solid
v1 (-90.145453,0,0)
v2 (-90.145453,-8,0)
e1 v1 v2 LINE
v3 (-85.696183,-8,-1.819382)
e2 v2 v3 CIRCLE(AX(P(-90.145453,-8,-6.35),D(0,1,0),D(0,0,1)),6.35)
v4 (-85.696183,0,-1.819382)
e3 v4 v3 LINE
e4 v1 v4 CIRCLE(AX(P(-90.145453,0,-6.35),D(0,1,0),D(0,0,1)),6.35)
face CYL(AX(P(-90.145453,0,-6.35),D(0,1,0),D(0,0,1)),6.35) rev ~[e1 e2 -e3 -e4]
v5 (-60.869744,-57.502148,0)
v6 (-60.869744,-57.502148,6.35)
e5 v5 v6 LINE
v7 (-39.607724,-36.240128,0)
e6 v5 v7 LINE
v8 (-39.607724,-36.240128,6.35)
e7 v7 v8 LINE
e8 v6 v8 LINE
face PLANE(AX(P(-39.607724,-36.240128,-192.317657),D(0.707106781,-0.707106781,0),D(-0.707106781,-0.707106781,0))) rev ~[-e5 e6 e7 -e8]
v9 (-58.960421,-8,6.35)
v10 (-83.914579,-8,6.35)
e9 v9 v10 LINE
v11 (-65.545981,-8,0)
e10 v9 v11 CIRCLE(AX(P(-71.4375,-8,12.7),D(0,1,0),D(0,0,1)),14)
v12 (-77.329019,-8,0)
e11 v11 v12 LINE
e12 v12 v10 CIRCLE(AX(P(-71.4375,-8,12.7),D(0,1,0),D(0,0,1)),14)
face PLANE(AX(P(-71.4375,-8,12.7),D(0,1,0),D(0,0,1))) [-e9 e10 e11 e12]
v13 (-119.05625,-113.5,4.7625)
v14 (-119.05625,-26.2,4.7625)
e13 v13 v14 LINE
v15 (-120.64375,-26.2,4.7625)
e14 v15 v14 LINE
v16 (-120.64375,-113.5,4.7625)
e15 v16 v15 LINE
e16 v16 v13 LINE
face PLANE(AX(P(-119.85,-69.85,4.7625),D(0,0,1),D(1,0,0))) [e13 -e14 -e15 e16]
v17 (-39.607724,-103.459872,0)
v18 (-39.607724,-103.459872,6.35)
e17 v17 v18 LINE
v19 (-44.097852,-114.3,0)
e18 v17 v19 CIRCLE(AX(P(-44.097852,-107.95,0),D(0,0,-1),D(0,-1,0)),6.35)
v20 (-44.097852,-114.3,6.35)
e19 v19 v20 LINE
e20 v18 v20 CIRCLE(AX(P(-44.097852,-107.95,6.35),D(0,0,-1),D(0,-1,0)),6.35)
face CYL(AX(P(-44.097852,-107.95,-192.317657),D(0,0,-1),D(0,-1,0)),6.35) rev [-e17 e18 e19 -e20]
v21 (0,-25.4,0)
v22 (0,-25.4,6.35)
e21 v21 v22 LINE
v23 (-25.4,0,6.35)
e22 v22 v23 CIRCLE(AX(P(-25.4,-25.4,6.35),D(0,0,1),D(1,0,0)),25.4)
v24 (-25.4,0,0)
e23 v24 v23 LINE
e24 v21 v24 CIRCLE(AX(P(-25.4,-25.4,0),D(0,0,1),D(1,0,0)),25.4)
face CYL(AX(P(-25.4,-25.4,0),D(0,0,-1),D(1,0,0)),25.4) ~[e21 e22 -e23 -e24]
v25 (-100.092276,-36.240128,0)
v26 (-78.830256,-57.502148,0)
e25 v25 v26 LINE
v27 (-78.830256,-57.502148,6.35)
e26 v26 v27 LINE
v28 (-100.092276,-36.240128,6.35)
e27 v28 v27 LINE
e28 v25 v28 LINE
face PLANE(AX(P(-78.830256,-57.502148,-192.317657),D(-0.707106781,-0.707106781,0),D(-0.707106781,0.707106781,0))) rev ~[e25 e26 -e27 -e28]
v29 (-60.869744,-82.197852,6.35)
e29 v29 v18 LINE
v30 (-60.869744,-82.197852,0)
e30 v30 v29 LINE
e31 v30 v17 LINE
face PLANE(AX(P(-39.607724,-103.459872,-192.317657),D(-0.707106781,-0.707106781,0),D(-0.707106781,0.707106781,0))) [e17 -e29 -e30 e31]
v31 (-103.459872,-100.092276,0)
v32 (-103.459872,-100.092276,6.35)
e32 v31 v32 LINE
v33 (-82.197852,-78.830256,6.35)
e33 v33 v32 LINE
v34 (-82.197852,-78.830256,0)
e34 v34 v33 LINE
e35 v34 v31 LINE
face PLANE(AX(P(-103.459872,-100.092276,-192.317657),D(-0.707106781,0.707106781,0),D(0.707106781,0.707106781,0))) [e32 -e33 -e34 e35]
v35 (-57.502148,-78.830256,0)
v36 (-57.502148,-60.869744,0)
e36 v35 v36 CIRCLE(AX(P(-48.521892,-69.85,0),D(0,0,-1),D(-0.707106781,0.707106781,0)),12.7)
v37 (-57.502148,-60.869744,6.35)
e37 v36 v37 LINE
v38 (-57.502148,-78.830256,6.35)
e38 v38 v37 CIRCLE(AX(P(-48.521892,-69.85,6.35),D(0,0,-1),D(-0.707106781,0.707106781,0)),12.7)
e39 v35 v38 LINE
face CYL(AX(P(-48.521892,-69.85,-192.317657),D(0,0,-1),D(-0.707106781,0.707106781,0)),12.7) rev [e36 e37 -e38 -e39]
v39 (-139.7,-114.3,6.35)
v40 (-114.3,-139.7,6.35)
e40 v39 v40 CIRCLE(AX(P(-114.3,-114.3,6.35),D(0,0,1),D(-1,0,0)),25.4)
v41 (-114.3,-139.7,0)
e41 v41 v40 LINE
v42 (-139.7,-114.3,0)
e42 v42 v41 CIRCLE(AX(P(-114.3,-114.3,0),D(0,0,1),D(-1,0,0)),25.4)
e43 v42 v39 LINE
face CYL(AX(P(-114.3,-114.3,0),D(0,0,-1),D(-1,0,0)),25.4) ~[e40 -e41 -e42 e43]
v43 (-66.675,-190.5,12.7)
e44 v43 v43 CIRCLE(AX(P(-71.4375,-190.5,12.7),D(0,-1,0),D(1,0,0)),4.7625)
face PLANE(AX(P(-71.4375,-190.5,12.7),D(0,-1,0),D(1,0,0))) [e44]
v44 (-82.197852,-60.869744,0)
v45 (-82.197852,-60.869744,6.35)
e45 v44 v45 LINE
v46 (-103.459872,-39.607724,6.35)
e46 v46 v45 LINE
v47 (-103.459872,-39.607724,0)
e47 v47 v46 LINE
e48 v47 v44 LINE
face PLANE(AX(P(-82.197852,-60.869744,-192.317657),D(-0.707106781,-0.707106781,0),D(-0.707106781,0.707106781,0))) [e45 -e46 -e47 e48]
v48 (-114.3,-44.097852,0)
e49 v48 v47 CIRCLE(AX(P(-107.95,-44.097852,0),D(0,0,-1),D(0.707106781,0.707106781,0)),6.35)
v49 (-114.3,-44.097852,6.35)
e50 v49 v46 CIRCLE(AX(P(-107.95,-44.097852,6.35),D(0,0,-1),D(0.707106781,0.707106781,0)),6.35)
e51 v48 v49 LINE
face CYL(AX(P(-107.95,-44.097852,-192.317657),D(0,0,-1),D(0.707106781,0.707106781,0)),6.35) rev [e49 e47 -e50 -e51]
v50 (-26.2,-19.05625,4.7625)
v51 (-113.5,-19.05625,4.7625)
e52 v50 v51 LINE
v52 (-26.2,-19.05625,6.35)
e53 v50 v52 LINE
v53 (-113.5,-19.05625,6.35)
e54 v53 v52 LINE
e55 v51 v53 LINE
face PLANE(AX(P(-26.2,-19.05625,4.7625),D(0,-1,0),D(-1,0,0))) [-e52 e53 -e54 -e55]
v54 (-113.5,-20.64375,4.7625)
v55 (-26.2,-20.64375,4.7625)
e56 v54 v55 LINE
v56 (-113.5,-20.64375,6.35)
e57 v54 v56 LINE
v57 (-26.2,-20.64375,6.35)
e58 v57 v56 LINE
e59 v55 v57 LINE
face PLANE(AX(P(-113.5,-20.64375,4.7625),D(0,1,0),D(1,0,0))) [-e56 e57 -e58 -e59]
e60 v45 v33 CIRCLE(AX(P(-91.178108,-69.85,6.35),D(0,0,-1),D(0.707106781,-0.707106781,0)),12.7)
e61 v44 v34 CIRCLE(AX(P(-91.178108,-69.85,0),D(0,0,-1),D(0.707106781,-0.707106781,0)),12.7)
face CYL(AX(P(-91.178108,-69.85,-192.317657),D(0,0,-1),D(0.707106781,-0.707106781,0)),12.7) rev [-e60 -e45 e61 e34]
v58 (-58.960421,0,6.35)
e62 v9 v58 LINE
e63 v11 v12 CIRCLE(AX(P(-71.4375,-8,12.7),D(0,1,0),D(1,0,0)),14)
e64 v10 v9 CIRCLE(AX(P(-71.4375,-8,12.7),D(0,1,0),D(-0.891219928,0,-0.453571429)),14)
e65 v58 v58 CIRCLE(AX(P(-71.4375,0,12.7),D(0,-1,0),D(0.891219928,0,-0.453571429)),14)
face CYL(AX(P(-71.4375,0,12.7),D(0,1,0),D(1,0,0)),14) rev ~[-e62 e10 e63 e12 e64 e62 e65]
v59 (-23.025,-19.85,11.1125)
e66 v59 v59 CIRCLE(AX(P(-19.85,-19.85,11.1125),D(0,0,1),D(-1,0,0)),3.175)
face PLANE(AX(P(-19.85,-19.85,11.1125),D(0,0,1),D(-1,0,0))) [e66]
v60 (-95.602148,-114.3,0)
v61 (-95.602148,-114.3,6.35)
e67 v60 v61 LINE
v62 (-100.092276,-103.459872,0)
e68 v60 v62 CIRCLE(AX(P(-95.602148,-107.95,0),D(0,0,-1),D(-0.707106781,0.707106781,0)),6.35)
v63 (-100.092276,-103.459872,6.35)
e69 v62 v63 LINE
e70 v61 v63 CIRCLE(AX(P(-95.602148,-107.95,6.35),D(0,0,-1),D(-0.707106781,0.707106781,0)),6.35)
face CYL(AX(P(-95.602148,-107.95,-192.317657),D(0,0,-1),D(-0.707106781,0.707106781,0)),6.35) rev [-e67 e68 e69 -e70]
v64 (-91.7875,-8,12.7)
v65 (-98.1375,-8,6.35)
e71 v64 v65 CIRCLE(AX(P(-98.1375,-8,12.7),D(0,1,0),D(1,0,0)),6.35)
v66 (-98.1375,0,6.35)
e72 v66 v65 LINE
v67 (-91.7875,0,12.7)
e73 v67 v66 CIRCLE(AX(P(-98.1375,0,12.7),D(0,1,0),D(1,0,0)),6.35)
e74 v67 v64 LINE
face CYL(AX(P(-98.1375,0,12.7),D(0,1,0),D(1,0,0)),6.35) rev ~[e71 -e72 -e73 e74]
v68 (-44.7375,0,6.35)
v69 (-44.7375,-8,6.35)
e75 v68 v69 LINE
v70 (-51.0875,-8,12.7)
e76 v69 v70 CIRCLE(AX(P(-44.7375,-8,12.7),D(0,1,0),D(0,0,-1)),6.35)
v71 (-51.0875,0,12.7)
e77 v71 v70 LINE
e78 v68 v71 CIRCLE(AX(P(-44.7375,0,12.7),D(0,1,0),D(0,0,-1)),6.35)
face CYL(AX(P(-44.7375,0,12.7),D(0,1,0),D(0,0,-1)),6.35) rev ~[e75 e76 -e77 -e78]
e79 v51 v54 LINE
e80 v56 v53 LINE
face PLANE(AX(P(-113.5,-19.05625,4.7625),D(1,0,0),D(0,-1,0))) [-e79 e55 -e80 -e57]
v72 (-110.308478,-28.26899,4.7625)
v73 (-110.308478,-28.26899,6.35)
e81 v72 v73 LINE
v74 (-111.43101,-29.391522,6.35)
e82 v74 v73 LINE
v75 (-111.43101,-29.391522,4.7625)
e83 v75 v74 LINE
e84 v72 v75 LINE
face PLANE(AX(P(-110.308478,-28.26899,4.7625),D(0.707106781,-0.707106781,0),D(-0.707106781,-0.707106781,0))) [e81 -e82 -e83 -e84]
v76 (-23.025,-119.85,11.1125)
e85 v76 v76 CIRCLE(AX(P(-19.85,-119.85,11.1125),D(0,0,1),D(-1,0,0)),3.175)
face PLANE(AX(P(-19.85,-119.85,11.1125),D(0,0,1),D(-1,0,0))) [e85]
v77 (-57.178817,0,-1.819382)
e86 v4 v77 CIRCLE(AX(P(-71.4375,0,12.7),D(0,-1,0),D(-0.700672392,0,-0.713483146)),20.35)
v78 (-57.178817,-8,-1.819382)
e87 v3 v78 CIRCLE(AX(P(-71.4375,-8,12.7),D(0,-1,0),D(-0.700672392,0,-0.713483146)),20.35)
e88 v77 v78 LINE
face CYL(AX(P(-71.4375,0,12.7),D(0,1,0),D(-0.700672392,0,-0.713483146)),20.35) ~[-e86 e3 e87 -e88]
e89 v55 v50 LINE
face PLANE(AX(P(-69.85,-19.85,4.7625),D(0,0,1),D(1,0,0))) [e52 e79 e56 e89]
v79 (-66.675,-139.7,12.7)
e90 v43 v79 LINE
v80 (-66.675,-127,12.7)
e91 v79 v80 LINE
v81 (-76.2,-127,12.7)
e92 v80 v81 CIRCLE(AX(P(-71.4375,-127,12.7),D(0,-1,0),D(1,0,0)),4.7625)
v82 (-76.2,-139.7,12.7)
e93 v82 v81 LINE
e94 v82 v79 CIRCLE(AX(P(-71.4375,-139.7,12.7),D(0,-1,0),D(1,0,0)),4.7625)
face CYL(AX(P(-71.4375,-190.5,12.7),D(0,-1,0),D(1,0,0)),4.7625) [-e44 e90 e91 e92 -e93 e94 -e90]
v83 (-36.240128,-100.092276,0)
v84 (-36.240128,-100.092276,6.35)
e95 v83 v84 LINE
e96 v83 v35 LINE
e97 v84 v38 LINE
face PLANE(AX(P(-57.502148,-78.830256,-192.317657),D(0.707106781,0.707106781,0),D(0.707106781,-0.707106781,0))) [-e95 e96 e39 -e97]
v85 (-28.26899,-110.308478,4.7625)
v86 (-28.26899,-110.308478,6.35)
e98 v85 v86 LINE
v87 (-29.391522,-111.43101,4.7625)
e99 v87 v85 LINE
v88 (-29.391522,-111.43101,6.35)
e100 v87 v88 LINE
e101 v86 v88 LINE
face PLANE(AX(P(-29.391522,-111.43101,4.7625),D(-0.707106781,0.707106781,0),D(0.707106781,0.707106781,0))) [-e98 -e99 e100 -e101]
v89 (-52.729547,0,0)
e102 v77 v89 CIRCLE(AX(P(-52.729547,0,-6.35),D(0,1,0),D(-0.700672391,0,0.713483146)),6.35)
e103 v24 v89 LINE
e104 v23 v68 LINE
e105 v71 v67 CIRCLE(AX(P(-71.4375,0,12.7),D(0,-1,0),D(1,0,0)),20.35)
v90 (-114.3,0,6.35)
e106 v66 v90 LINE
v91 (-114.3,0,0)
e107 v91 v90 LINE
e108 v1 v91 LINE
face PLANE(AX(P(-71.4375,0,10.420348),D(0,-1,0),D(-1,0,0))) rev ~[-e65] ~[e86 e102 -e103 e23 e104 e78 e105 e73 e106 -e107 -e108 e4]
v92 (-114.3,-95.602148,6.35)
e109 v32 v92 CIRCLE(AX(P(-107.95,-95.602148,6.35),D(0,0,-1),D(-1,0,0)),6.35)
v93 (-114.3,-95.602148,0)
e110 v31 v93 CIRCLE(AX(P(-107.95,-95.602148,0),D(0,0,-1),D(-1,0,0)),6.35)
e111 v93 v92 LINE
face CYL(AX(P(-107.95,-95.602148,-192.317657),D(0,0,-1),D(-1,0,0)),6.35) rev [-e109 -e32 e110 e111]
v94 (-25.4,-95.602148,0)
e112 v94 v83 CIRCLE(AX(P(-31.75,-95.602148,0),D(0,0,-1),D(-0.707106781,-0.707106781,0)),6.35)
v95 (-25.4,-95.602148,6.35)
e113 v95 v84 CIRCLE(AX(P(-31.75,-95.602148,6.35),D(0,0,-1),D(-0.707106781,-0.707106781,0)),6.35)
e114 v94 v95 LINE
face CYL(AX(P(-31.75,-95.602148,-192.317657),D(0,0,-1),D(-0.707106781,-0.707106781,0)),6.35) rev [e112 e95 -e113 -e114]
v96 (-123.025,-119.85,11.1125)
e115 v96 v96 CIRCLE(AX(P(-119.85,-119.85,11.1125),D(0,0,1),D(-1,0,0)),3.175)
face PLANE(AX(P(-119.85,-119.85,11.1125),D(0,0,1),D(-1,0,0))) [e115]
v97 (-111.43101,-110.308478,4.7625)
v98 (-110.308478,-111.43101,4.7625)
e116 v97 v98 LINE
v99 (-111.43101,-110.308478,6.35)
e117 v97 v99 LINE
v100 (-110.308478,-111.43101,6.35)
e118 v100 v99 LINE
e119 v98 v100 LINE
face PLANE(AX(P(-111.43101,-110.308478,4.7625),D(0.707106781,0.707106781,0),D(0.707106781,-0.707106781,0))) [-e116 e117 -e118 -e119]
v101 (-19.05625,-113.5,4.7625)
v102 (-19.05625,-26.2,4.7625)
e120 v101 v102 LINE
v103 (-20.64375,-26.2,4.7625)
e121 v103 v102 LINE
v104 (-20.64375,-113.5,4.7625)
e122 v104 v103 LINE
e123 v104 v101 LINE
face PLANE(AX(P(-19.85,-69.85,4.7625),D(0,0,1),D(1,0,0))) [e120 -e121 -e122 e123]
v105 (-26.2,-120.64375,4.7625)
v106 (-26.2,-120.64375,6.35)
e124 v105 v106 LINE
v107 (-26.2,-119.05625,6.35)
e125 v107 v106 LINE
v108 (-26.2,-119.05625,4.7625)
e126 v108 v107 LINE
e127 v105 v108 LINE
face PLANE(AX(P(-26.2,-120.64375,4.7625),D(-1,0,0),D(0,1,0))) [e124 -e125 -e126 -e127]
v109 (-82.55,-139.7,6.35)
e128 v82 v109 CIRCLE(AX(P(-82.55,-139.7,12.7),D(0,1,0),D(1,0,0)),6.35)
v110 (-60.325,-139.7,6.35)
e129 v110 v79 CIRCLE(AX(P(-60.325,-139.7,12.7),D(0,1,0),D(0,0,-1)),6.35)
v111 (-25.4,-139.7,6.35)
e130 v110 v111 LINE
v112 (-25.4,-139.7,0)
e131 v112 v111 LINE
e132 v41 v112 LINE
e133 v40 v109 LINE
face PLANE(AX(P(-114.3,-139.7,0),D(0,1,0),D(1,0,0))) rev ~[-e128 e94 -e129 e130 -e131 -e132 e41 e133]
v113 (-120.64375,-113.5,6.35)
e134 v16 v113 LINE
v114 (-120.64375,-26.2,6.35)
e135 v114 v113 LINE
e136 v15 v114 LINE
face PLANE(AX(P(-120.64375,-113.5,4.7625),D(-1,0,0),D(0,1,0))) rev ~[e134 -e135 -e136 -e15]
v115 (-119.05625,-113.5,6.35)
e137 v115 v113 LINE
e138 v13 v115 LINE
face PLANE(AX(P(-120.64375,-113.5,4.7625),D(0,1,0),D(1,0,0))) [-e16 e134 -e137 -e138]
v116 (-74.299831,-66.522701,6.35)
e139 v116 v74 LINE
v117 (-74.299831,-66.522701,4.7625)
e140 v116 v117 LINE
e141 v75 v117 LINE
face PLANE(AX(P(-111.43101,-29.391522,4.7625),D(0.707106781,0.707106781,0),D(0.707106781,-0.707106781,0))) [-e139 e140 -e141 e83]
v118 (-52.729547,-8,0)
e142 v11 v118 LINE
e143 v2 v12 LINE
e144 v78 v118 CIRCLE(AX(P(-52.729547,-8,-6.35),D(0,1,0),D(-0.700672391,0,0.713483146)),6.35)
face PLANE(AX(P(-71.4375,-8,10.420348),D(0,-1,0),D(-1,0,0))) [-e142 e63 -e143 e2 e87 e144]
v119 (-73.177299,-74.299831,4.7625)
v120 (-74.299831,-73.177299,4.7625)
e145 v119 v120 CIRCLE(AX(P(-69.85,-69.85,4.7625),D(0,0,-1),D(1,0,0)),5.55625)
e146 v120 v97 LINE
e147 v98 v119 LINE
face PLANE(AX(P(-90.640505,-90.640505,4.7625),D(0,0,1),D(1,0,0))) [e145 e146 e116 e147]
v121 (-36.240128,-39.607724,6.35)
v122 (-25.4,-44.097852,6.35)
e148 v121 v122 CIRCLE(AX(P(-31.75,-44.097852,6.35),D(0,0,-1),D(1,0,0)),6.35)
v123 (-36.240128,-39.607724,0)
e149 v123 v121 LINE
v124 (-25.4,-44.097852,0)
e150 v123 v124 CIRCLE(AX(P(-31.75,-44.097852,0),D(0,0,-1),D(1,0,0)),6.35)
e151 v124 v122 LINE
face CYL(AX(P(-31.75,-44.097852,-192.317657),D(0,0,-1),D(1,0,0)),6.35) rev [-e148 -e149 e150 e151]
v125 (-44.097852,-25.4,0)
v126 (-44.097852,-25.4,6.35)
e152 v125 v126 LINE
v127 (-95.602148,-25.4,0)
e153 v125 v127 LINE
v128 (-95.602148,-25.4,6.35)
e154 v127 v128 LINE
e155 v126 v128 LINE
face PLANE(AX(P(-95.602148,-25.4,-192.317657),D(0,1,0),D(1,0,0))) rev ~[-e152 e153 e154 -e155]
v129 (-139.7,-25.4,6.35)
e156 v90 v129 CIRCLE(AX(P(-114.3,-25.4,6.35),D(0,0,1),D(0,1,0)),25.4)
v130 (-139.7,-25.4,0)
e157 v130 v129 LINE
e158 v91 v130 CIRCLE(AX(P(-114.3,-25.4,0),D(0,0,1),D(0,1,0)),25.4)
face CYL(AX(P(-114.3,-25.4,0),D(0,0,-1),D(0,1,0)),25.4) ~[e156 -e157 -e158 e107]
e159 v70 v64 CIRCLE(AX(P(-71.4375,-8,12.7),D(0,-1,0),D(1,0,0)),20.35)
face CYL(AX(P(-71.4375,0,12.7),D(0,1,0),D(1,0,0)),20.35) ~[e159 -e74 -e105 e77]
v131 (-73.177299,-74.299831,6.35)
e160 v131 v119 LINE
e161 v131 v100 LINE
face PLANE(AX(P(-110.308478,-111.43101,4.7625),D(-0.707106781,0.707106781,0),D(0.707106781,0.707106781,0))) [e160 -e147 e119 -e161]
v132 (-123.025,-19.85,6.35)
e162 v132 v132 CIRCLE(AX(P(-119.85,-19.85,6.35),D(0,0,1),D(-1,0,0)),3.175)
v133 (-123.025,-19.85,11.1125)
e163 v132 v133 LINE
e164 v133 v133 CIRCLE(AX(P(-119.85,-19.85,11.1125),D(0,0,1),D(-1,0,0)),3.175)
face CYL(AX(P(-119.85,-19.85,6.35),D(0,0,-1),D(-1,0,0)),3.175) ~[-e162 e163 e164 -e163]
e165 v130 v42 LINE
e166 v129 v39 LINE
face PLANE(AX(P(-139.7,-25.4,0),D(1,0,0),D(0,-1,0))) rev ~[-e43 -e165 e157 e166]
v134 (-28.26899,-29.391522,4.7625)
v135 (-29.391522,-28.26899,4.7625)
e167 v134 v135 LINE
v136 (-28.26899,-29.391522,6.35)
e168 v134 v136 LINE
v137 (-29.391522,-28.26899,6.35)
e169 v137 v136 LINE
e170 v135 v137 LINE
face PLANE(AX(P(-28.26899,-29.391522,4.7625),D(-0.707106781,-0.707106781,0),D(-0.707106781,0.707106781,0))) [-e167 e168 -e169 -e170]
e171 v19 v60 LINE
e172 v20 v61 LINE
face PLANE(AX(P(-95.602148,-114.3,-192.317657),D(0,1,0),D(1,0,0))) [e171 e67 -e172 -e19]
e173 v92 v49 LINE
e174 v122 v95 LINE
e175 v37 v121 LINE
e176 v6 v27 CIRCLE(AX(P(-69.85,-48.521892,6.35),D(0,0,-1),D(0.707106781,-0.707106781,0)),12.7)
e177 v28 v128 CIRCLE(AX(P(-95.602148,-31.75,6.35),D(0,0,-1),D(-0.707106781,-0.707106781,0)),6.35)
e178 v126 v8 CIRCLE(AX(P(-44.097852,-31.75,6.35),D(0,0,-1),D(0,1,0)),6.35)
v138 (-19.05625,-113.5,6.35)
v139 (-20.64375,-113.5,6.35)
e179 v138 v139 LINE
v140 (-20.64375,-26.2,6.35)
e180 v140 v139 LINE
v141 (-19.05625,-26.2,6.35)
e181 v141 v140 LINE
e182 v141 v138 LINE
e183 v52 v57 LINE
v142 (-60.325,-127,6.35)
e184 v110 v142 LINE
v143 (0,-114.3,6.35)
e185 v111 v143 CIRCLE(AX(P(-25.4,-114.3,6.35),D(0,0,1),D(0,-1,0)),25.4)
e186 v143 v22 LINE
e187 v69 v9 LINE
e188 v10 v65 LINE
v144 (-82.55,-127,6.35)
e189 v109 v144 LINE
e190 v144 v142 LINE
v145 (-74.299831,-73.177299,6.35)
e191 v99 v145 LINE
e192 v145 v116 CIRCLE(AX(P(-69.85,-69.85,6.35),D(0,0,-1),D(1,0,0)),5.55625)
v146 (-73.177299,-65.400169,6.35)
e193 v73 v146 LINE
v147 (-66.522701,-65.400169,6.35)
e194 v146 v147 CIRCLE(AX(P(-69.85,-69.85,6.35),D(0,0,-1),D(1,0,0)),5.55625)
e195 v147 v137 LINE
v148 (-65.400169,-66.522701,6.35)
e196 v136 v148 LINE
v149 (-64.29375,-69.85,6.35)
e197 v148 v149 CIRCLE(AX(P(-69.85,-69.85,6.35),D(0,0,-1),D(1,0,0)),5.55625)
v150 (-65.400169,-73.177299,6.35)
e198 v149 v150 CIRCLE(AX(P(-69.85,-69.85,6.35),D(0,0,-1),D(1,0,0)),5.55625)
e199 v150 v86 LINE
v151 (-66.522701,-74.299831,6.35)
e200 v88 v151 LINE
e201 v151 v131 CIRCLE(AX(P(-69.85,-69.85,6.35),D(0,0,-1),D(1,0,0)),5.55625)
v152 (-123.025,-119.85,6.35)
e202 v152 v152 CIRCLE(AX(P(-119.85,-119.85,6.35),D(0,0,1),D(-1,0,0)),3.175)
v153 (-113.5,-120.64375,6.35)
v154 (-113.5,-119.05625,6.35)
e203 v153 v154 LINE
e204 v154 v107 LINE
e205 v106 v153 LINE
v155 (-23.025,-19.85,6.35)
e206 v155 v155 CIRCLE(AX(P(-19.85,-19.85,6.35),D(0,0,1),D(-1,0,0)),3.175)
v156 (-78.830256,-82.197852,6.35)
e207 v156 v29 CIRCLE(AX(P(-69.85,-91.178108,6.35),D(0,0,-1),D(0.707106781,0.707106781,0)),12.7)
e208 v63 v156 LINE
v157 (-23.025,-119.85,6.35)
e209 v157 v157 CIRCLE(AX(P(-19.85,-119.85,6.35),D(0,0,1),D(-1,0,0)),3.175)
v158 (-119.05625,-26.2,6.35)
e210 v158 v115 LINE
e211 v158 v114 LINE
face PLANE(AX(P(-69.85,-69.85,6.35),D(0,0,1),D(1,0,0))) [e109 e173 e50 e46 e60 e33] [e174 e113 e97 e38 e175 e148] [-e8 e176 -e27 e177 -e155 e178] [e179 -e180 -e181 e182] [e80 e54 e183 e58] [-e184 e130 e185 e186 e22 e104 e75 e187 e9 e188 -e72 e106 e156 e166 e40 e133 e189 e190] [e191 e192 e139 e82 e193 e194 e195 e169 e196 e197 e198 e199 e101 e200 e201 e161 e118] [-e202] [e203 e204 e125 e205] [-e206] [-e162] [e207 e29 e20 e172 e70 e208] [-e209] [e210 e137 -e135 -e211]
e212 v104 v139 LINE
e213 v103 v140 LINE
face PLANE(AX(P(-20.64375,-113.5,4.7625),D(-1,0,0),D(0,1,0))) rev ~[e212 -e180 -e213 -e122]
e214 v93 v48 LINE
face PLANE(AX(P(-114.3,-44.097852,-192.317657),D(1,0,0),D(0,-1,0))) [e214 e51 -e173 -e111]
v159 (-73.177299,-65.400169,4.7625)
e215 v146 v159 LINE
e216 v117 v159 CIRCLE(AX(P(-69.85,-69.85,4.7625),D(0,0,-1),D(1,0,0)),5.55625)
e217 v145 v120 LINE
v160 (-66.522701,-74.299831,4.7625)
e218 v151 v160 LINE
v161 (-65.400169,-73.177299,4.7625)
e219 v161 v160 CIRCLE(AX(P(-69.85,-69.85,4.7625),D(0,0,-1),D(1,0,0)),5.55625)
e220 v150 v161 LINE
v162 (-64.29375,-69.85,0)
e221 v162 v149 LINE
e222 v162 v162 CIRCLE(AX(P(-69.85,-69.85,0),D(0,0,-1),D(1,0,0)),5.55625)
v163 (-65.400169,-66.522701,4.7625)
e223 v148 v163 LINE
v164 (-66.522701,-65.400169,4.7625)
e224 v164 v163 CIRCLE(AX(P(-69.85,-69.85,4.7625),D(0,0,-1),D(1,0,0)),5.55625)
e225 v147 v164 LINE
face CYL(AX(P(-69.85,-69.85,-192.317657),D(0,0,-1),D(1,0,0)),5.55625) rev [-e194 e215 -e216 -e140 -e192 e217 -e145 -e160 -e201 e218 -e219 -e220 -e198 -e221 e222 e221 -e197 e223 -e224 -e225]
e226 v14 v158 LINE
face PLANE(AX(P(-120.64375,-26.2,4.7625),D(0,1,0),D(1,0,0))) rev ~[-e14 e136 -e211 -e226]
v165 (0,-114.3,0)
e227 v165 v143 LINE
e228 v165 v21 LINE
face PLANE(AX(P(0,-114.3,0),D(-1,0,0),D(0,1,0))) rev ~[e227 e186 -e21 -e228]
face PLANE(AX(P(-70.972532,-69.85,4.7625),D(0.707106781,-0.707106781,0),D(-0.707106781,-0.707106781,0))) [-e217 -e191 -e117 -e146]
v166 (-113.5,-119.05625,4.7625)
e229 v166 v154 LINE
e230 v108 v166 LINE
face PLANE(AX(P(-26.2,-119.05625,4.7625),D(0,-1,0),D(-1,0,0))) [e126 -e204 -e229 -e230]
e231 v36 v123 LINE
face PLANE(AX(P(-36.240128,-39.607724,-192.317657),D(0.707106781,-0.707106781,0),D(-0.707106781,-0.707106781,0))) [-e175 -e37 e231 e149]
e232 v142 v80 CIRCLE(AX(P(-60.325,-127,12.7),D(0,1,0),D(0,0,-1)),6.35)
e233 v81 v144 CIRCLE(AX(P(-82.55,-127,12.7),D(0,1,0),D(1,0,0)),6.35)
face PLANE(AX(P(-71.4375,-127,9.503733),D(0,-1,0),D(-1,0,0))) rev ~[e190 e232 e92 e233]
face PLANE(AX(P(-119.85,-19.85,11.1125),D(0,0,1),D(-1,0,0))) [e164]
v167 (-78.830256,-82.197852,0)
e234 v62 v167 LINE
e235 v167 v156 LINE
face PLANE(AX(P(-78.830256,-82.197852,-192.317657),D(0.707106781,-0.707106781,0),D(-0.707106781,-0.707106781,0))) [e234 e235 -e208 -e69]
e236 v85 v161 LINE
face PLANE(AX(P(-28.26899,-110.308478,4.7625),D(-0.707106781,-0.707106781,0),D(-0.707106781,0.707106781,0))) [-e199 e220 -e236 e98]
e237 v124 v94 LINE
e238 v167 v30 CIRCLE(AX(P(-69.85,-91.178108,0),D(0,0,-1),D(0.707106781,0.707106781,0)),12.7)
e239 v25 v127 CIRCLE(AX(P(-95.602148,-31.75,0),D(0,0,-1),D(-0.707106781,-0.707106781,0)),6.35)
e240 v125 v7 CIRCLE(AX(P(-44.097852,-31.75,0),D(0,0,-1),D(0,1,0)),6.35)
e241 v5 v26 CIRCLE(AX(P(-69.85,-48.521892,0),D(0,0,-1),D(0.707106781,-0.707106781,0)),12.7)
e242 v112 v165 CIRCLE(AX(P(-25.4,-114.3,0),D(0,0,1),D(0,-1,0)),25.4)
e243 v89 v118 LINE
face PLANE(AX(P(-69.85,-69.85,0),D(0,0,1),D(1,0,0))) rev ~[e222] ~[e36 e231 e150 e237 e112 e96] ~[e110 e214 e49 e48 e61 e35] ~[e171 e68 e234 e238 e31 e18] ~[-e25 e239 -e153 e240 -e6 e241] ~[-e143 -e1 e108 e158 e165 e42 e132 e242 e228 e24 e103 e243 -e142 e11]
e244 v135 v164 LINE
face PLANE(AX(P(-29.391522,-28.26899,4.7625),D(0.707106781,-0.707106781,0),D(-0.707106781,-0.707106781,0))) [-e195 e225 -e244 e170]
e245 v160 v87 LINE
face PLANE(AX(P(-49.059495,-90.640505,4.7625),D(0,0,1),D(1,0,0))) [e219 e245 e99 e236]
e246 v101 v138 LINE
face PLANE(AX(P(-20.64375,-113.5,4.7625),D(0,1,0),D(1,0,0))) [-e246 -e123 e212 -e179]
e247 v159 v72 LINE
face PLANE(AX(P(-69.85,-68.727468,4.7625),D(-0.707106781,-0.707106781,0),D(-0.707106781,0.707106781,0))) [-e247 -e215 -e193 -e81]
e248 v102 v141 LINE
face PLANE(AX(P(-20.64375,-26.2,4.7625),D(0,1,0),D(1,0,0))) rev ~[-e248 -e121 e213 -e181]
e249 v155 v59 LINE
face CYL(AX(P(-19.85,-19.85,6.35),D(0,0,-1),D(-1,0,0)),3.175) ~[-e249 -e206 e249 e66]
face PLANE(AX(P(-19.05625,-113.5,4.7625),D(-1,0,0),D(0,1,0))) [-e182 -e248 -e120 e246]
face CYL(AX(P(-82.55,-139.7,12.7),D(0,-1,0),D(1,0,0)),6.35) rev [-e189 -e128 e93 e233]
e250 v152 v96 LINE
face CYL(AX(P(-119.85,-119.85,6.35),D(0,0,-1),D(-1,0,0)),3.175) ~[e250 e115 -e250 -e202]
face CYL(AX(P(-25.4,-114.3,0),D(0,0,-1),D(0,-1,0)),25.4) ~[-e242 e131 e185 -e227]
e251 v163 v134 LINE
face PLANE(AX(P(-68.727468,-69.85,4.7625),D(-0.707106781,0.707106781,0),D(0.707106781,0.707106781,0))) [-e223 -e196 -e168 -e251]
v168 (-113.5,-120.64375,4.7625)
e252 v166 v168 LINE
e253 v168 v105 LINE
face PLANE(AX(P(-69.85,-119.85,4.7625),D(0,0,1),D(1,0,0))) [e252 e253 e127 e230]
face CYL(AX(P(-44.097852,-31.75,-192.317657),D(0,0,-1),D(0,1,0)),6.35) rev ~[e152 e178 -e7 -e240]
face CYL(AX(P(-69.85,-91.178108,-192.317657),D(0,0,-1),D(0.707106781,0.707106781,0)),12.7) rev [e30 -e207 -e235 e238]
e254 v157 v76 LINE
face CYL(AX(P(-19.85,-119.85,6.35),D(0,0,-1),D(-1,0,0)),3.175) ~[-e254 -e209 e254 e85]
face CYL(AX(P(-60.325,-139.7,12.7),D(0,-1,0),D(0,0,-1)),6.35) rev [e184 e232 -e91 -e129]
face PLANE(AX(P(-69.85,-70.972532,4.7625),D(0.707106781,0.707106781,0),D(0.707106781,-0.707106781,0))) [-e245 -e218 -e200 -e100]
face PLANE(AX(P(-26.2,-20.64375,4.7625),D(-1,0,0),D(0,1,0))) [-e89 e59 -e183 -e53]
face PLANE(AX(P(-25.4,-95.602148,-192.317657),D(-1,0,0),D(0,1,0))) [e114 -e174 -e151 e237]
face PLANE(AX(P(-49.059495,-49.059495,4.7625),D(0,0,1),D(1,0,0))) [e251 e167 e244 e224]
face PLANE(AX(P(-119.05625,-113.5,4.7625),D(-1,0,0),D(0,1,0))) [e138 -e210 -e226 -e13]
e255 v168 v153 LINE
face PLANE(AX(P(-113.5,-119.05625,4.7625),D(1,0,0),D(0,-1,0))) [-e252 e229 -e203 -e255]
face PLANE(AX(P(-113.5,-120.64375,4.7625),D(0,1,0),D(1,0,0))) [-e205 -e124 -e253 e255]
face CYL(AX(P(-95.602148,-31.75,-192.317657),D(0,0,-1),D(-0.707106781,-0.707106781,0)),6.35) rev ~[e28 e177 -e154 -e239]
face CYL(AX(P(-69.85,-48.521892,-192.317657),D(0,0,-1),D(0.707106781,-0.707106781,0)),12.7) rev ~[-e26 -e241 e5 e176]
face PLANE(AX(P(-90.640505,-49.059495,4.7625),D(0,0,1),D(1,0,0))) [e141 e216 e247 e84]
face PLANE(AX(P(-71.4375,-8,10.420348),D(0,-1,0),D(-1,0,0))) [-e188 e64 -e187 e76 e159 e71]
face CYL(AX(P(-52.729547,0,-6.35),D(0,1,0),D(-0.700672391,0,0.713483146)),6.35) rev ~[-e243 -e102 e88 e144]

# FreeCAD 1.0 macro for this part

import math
import FreeCAD as App
import Part
import Sketcher
from FreeCAD import Vector
Q = App.Units.Quantity


def add_polygon(sketch, points):
    """Adds a closed chain of lines whose ends are joined by coincident constraints."""
    first, n = sketch.GeometryCount, len(points)
    for a, b in zip(points, points[1:] + points[:1]):
        sketch.addGeometry(Part.LineSegment(App.Vector(*a, 0), App.Vector(*b, 0)), False)
    for i in range(n):
        sketch.addConstraint(Sketcher.Constraint("Coincident", first + i, 2, first + (i + 1) % n, 1))

doc = App.newDocument("Part")
params = doc.addObject("Spreadsheet::Sheet", "Params")
for row, (alias, value) in enumerate([
    ("sketch1_radius", "1 in"),
    ("sketch1_width", "3.5 in"),
    ("pad1_length", "0.25 in"),
    ("sketch2_radius", "0.5 in"),
    ("sketch2_radius2", "0.25 in"),
    ("sketch2_diameter", "0.4375 in"),
    ("sketch3_width", "0.0625 in"),
    ("sketch3_length", "0.0625 in"),
    ("pocket2_length", "198.667657 mm"),
    ("pocket2_length2", "0.0625 in"),
    ("sketch4_diameter", "0.25 in"),
    ("pad2_length", "0.1875 in"),
    ("sketch5_radius", "0.25 in"),
    ("pad3_length", "8 mm"),
    ("sketch6_radius", "0.25 in"),
    ("sketch6_radius2", "0.1875 in"),
    ("pad4_length", "0.5 in"),
    ("sketch7_diameter", "0.375 in"),
    ("pad5_length", "2 in"),
    ("pocket3_length", "8 mm"),
], start=1):
    params.set(f"A{row}", alias)
    params.set(f"B{row}", "=" + value)
    params.setAlias(f"B{row}", alias)

body = doc.addObject("PartDesign::Body", "Body")

sketch1 = body.newObject("Sketcher::SketchObject", "Sketch")
sketch1.AttachmentSupport = (doc.getObject("XY_Plane"), [""])
sketch1.MapMode = "FlatFace"
sketch1.addGeometry([
    Part.LineSegment(Vector(-25.4, 0, 0), Vector(-114.3, 0, 0)),
    Part.ArcOfCircle(Part.Circle(Vector(-114.3, -25.4, 0), Vector(0, 0, 1), 25.4), math.radians(90), math.radians(180)),
    Part.LineSegment(Vector(-139.7, -25.4, 0), Vector(-139.7, -114.3, 0)),
    Part.ArcOfCircle(Part.Circle(Vector(-114.3, -114.3, 0), Vector(0, 0, 1), 25.4), math.radians(180), math.radians(270)),
    Part.LineSegment(Vector(-114.3, -139.7, 0), Vector(-25.4, -139.7, 0)),
    Part.ArcOfCircle(Part.Circle(Vector(-25.4, -114.3, 0), Vector(0, 0, 1), 25.4), math.radians(-90), math.radians(0)),
    Part.LineSegment(Vector(0, -114.3, 0), Vector(0, -25.4, 0)),
    Part.ArcOfCircle(Part.Circle(Vector(-25.4, -25.4, 0), Vector(0, 0, 1), 25.4), math.radians(0), math.radians(90)),
], False)
sketch1.addConstraint([
    Sketcher.Constraint("Tangent", 0, 2, 1, 1),
    Sketcher.Constraint("Tangent", 1, 2, 2, 1),
    Sketcher.Constraint("Tangent", 2, 2, 3, 1),
    Sketcher.Constraint("Tangent", 3, 2, 4, 1),
    Sketcher.Constraint("Tangent", 4, 2, 5, 1),
    Sketcher.Constraint("Tangent", 5, 2, 6, 1),
    Sketcher.Constraint("Tangent", 6, 2, 7, 1),
    Sketcher.Constraint("Tangent", 7, 2, 0, 1),
    Sketcher.Constraint("Horizontal", 0),
    Sketcher.Constraint("Vertical", 2),
    Sketcher.Constraint("Horizontal", 4),
    Sketcher.Constraint("Vertical", 6),
    Sketcher.Constraint("Equal", 1, 3),
    Sketcher.Constraint("Equal", 3, 5),
    Sketcher.Constraint("Equal", 5, 7),
    Sketcher.Constraint("PointOnObject", 0, 2, -1),
    Sketcher.Constraint("PointOnObject", 5, 2, -2),
    Sketcher.Constraint("Equal", 4, 2),
    Sketcher.Constraint("Radius", 1, Q("1 in")),
    Sketcher.Constraint("DistanceX", 0, 2, 0, 1, Q("3.5 in")),
])
sketch1.setExpression("Constraints[18]", "Params.sketch1_radius")
sketch1.setExpression("Constraints[19]", "Params.sketch1_width")
pad1 = body.newObject("PartDesign::Pad", "Pad")
pad1.Profile = sketch1
pad1.setExpression("Length", "Params.pad1_length")

sketch2 = body.newObject("Sketcher::SketchObject", "Sketch001")
sketch2.AttachmentSupport = (doc.getObject("XY_Plane"), [""])
sketch2.MapMode = "FlatFace"
sketch2.AttachmentOffset = App.Placement(Vector(0, 0, 0.25 * 25.4), App.Rotation())
sketch2.addGeometry([
    Part.Circle(Vector(-69.85, -69.85, 0), Vector(0, 0, 1), 5.55625),
    Part.LineSegment(Vector(-44.097852, -25.4, 0), Vector(-95.602148, -25.4, 0)),
    Part.ArcOfCircle(Part.Circle(Vector(-95.602148, -31.75, 0), Vector(0, 0, 1), 6.35), math.radians(90), math.radians(225)),
    Part.LineSegment(Vector(-100.092276, -36.240128, 0), Vector(-78.830256, -57.502148, 0)),
    Part.ArcOfCircle(Part.Circle(Vector(-69.85, -48.521892, 0), Vector(0, 0, 1), 12.7), math.radians(-135), math.radians(-45)),
    Part.LineSegment(Vector(-60.869744, -57.502148, 0), Vector(-39.607724, -36.240128, 0)),
    Part.ArcOfCircle(Part.Circle(Vector(-44.097852, -31.75, 0), Vector(0, 0, 1), 6.35), math.radians(-45), math.radians(90)),
    Part.LineSegment(Vector(-57.502148, -78.830256, 0), Vector(-36.240128, -100.092276, 0)),
    Part.ArcOfCircle(Part.Circle(Vector(-31.75, -95.602148, 0), Vector(0, 0, 1), 6.35), math.radians(-135), math.radians(0)),
    Part.LineSegment(Vector(-25.4, -95.602148, 0), Vector(-25.4, -44.097852, 0)),
    Part.ArcOfCircle(Part.Circle(Vector(-31.75, -44.097852, 0), Vector(0, 0, 1), 6.35), math.radians(0), math.radians(135)),
    Part.LineSegment(Vector(-36.240128, -39.607724, 0), Vector(-57.502148, -60.869744, 0)),
    Part.ArcOfCircle(Part.Circle(Vector(-48.521892, -69.85, 0), Vector(0, 0, 1), 12.7), math.radians(135), math.radians(225)),
    Part.LineSegment(Vector(-78.830256, -82.197852, 0), Vector(-100.092276, -103.459872, 0)),
    Part.ArcOfCircle(Part.Circle(Vector(-95.602148, -107.95, 0), Vector(0, 0, 1), 6.35), math.radians(135), math.radians(270)),
    Part.LineSegment(Vector(-95.602148, -114.3, 0), Vector(-44.097852, -114.3, 0)),
    Part.ArcOfCircle(Part.Circle(Vector(-44.097852, -107.95, 0), Vector(0, 0, 1), 6.35), math.radians(-90), math.radians(45)),
    Part.LineSegment(Vector(-39.607724, -103.459872, 0), Vector(-60.869744, -82.197852, 0)),
    Part.ArcOfCircle(Part.Circle(Vector(-69.85, -91.178108, 0), Vector(0, 0, 1), 12.7), math.radians(45), math.radians(135)),
    Part.LineSegment(Vector(-82.197852, -60.869744, 0), Vector(-103.459872, -39.607724, 0)),
    Part.ArcOfCircle(Part.Circle(Vector(-107.95, -44.097852, 0), Vector(0, 0, 1), 6.35), math.radians(45), math.radians(180)),
    Part.LineSegment(Vector(-114.3, -44.097852, 0), Vector(-114.3, -95.602148, 0)),
    Part.ArcOfCircle(Part.Circle(Vector(-107.95, -95.602148, 0), Vector(0, 0, 1), 6.35), math.radians(180), math.radians(315)),
    Part.LineSegment(Vector(-103.459872, -100.092276, 0), Vector(-82.197852, -78.830256, 0)),
    Part.ArcOfCircle(Part.Circle(Vector(-91.178108, -69.85, 0), Vector(0, 0, 1), 12.7), math.radians(-45), math.radians(45)),
], False)
sketch2.addConstraint([
    Sketcher.Constraint("Tangent", 1, 2, 2, 1),
    Sketcher.Constraint("Tangent", 2, 2, 3, 1),
    Sketcher.Constraint("Tangent", 3, 2, 4, 1),
    Sketcher.Constraint("Tangent", 4, 2, 5, 1),
    Sketcher.Constraint("Tangent", 5, 2, 6, 1),
    Sketcher.Constraint("Tangent", 6, 2, 1, 1),
    Sketcher.Constraint("Tangent", 7, 2, 8, 1),
    Sketcher.Constraint("Tangent", 8, 2, 9, 1),
    Sketcher.Constraint("Tangent", 9, 2, 10, 1),
    Sketcher.Constraint("Tangent", 10, 2, 11, 1),
    Sketcher.Constraint("Tangent", 11, 2, 12, 1),
    Sketcher.Constraint("Tangent", 12, 2, 7, 1),
    Sketcher.Constraint("Tangent", 13, 2, 14, 1),
    Sketcher.Constraint("Tangent", 14, 2, 15, 1),
    Sketcher.Constraint("Tangent", 15, 2, 16, 1),
    Sketcher.Constraint("Tangent", 16, 2, 17, 1),
    Sketcher.Constraint("Tangent", 17, 2, 18, 1),
    Sketcher.Constraint("Tangent", 18, 2, 13, 1),
    Sketcher.Constraint("Tangent", 19, 2, 20, 1),
    Sketcher.Constraint("Tangent", 20, 2, 21, 1),
    Sketcher.Constraint("Tangent", 21, 2, 22, 1),
    Sketcher.Constraint("Tangent", 22, 2, 23, 1),
    Sketcher.Constraint("Tangent", 23, 2, 24, 1),
    Sketcher.Constraint("Tangent", 24, 2, 19, 1),
    Sketcher.Constraint("Horizontal", 1),
    Sketcher.Constraint("Vertical", 9),
    Sketcher.Constraint("Horizontal", 15),
    Sketcher.Constraint("Vertical", 21),
    Sketcher.Constraint("Equal", 2, 6),
    Sketcher.Constraint("Equal", 6, 8),
    Sketcher.Constraint("Equal", 8, 10),
    Sketcher.Constraint("Equal", 4, 12),
    Sketcher.Constraint("Equal", 10, 14),
    Sketcher.Constraint("Equal", 14, 16),
    Sketcher.Constraint("Equal", 12, 18),
    Sketcher.Constraint("Equal", 16, 20),
    Sketcher.Constraint("Equal", 20, 22),
    Sketcher.Constraint("Equal", 18, 24),
    Sketcher.Constraint("Perpendicular", 3, 5),
    Sketcher.Constraint("Perpendicular", 5, 7),
    Sketcher.Constraint("Perpendicular", 7, 11),
    Sketcher.Constraint("Parallel", 11, 13),
    Sketcher.Constraint("Perpendicular", 13, 17),
    Sketcher.Constraint("Parallel", 17, 19),
    Sketcher.Constraint("Perpendicular", 19, 23),
    Sketcher.Constraint("Horizontal", 0, 3, 12, 3),
    Sketcher.Constraint("Horizontal", 10, 3, 20, 3),
    Sketcher.Constraint("Horizontal", 8, 3, 22, 3),
    Sketcher.Constraint("Horizontal", 12, 3, 24, 3),
    Sketcher.Constraint("Vertical", 0, 3, 4, 3),
    Sketcher.Constraint("Vertical", 2, 3, 14, 3),
    Sketcher.Constraint("Vertical", 6, 3, 16, 3),
    Sketcher.Constraint("Equal", 15, 9),
    Sketcher.Constraint("Radius", 4, Q("0.5 in")),
    Sketcher.Constraint("Radius", 2, Q("0.25 in")),
    Sketcher.Constraint("Diameter", 0, Q("0.4375 in")),
    Sketcher.Constraint("DistanceY", 1, 2, -1, 1, Q("1 in")),
    Sketcher.Constraint("DistanceX", 8, 2, -1, 1, Q("1 in")),
    Sketcher.Constraint("DistanceY", 14, 3, 2, 3, Q("3 in")),
    Sketcher.Constraint("DistanceX", 20, 2, -1, 1, Q("4.5 in")),
    Sketcher.Constraint("DistanceY", 0, 3, 2, 3, Q("1.5 in")),
    Sketcher.Constraint("DistanceX", 0, 3, 8, 3, Q("1.5 in")),
    Sketcher.Constraint("DistanceX", 1, 2, 1, 1, 51.504296),
])
sketch2.setExpression("Constraints[53]", "Params.sketch2_radius")
sketch2.setExpression("Constraints[54]", "Params.sketch2_radius2")
sketch2.setExpression("Constraints[55]", "Params.sketch2_diameter")
pocket1 = body.newObject("PartDesign::Pocket", "Pocket")
pocket1.Profile = sketch2
pocket1.Type = "ThroughAll"
pocket1.Midplane = True

sketch3 = body.newObject("Sketcher::SketchObject", "Sketch002")
sketch3.AttachmentSupport = (doc.getObject("XY_Plane"), [""])
sketch3.MapMode = "FlatFace"
sketch3.AttachmentOffset = App.Placement(Vector(0, 0, 0.25 * 25.4), App.Rotation())
add_polygon(sketch3, [(-26.2, -119.05625), (-113.5, -119.05625), (-113.5, -120.64375), (-26.2, -120.64375)])
add_polygon(sketch3, [(-29.391522, -28.26899), (-69.85, -68.727468), (-68.727468, -69.85), (-28.26899, -29.391522)])
add_polygon(sketch3, [(-70.972532, -69.85), (-69.85, -68.727468), (-110.308478, -28.26899), (-111.43101, -29.391522)])
add_polygon(sketch3, [(-113.5, -20.64375), (-26.2, -20.64375), (-26.2, -19.05625), (-113.5, -19.05625)])
add_polygon(sketch3, [(-110.308478, -111.43101), (-69.85, -70.972532), (-70.972532, -69.85), (-111.43101, -110.308478)])
add_polygon(sketch3, [(-68.727468, -69.85), (-69.85, -70.972532), (-29.391522, -111.43101), (-28.26899, -110.308478)])
add_polygon(sketch3, [(-120.64375, -26.2), (-120.64375, -113.5), (-119.05625, -113.5), (-119.05625, -26.2)])
add_polygon(sketch3, [(-20.64375, -26.2), (-20.64375, -113.5), (-19.05625, -113.5), (-19.05625, -26.2)])
sketch3.addConstraint([
    Sketcher.Constraint("Horizontal", 0),
    Sketcher.Constraint("Vertical", 1),
    Sketcher.Constraint("Horizontal", 2),
    Sketcher.Constraint("Vertical", 3),
    Sketcher.Constraint("Horizontal", 12),
    Sketcher.Constraint("Vertical", 13),
    Sketcher.Constraint("Horizontal", 14),
    Sketcher.Constraint("Vertical", 15),
    Sketcher.Constraint("Vertical", 24),
    Sketcher.Constraint("Horizontal", 25),
    Sketcher.Constraint("Vertical", 26),
    Sketcher.Constraint("Horizontal", 27),
    Sketcher.Constraint("Vertical", 28),
    Sketcher.Constraint("Horizontal", 29),
    Sketcher.Constraint("Vertical", 30),
    Sketcher.Constraint("Horizontal", 31),
    Sketcher.Constraint("Coincident", 8, 2, 4, 2),
    Sketcher.Constraint("Coincident", 17, 2, 11, 2),
    Sketcher.Constraint("Coincident", 20, 2, 16, 2),
    Sketcher.Constraint("Coincident", 23, 2, 5, 2),
    Sketcher.Constraint("Perpendicular", 4, 5),
    Sketcher.Constraint("Perpendicular", 5, 6),
    Sketcher.Constraint("Perpendicular", 6, 7),
    Sketcher.Constraint("Perpendicular", 7, 8),
    Sketcher.Constraint("Perpendicular", 8, 9),
    Sketcher.Constraint("Perpendicular", 9, 10),
    Sketcher.Constraint("Perpendicular", 10, 11),
    Sketcher.Constraint("Perpendicular", 11, 16),
    Sketcher.Constraint("Perpendicular", 16, 17),
    Sketcher.Constraint("Perpendicular", 17, 18),
    Sketcher.Constraint("Perpendicular", 18, 19),
    Sketcher.Constraint("Perpendicular", 19, 20),
    Sketcher.Constraint("Perpendicular", 20, 21),
    Sketcher.Constraint("Perpendicular", 21, 22),
    Sketcher.Constraint("Perpendicular", 22, 23),
    Sketcher.Constraint("Horizontal", 7, 2, 9, 2),
    Sketcher.Constraint("Horizontal", 6, 2, 10, 2),
    Sketcher.Constraint("Horizontal", 19, 2, 21, 2),
    Sketcher.Constraint("Horizontal", 25, 2, 28, 2),
    Sketcher.Constraint("Horizontal", 27, 2, 30, 2),
    Sketcher.Constraint("Vertical", 3, 2, 12, 2),
    Sketcher.Constraint("Vertical", 1, 2, 14, 2),
    Sketcher.Constraint("Vertical", 8, 2, 16, 2),
    Sketcher.Constraint("Vertical", 10, 2, 18, 2),
    Sketcher.Constraint("Equal", 27, 29),
    Sketcher.Constraint("Equal", 31, 1),
    Sketcher.Constraint("Equal", 3, 13),
    Sketcher.Constraint("Equal", 14, 24),
    Sketcher.Constraint("DistanceX", 25, 1, 25, 2, Q("0.0625 in")),
    Sketcher.Constraint("DistanceX", 4, 2, -1, 1, Q("2.75 in")),
    Sketcher.Constraint("DistanceY", 5, 2, -1, 1, Q("2.75 in")),
    Sketcher.Constraint("Distance", 5, Q("0.0625 in")),
    Sketcher.Constraint("DistanceX", 24, 2, 0, 2, Q("0.28125 in")),
    Sketcher.Constraint("DistanceY", 0, 2, 24, 2, Q("0.21875 in")),
    Sketcher.Constraint("DistanceY", 26, 2, 15, 2, Q("0.21875 in")),
    Sketcher.Constraint("DistanceX", 3, 2, 28, 2, Q("0.21875 in")),
    Sketcher.Constraint("DistanceX", 0, 2, 0, 1, 87.3),
    Sketcher.Constraint("DistanceX", 0, 2, -1, 1, 113.5),
    Sketcher.Constraint("DistanceY", 24, 2, -1, 1, 113.5),
    Sketcher.Constraint("Distance", 4, 57.216928),
])
sketch3.setExpression("Constraints[80]", "Params.sketch3_width")
sketch3.setExpression("Constraints[83]", "Params.sketch3_length")
pocket2 = body.newObject("PartDesign::Pocket", "Pocket001")
pocket2.Profile = sketch3
pocket2.Type = "TwoLengths"
pocket2.setExpression("Length", "Params.pocket2_length")
pocket2.setExpression("Length2", "Params.pocket2_length2")
pocket2.Reversed = True

sketch4 = body.newObject("Sketcher::SketchObject", "Sketch003")
sketch4.AttachmentSupport = (doc.getObject("XY_Plane"), [""])
sketch4.MapMode = "FlatFace"
sketch4.AttachmentOffset = App.Placement(Vector(0, 0, 0.25 * 25.4), App.Rotation())
sketch4.addGeometry([
    Part.Circle(Vector(-119.85, -19.85, 0), Vector(0, 0, 1), 3.175),
    Part.Circle(Vector(-19.85, -19.85, 0), Vector(0, 0, 1), 3.175),
    Part.Circle(Vector(-19.85, -119.85, 0), Vector(0, 0, 1), 3.175),
    Part.Circle(Vector(-119.85, -119.85, 0), Vector(0, 0, 1), 3.175),
], False)
sketch4.addConstraint([
    Sketcher.Constraint("Equal", 0, 1),
    Sketcher.Constraint("Equal", 1, 2),
    Sketcher.Constraint("Equal", 2, 3),
    Sketcher.Constraint("Horizontal", 0, 3, 1, 3),
    Sketcher.Constraint("Horizontal", 2, 3, 3, 3),
    Sketcher.Constraint("Vertical", 1, 3, 2, 3),
    Sketcher.Constraint("Vertical", 0, 3, 3, 3),
    Sketcher.Constraint("Diameter", 0, Q("0.25 in")),
    Sketcher.Constraint("DistanceX", 0, 3, -1, 1, 119.85),
    Sketcher.Constraint("DistanceY", 0, 3, -1, 1, 19.85),
    Sketcher.Constraint("DistanceX", 1, 3, -1, 1, 19.85),
    Sketcher.Constraint("DistanceY", 2, 3, -1, 1, 119.85),
])
sketch4.setExpression("Constraints[7]", "Params.sketch4_diameter")
pad2 = body.newObject("PartDesign::Pad", "Pad001")
pad2.Profile = sketch4
pad2.setExpression("Length", "Params.pad2_length")

sketch5 = body.newObject("Sketcher::SketchObject", "Sketch004")
sketch5.AttachmentSupport = (doc.getObject("XZ_Plane"), [""])
sketch5.MapMode = "FlatFace"
sketch5.addGeometry([
    Part.LineSegment(Vector(-90.771408, 6.35, 0), Vector(-98.1375, 6.35, 0)),
    Part.ArcOfCircle(Part.Circle(Vector(-98.1375, 12.7, 0), Vector(0, 0, 1), 6.35), math.radians(-90), math.radians(0)),
    Part.ArcOfCircle(Part.Circle(Vector(-71.4375, 12.7, 0), Vector(0, 0, 1), 20.35), math.radians(0), math.radians(180)),
    Part.ArcOfCircle(Part.Circle(Vector(-44.7375, 12.7, 0), Vector(0, 0, 1), 6.35), math.radians(180), math.radians(270)),
    Part.LineSegment(Vector(-44.7375, 6.35, 0), Vector(-52.103592, 6.35, 0)),
    Part.ArcOfCircle(Part.Circle(Vector(-71.4375, 12.7, 0), Vector(0, 0, 1), 20.35), math.radians(-38.614593), math.radians(-18.182172)),
    Part.LineSegment(Vector(-55.536792, 0, 0), Vector(-52.729547, 0, 0)),
    Part.ArcOfCircle(Part.Circle(Vector(-52.729547, -6.35, 0), Vector(0, 0, 1), 6.35), math.radians(90), math.radians(134.480975)),
    Part.ArcOfCircle(Part.Circle(Vector(-71.4375, 12.7, 0), Vector(0, 0, 1), 20.35), math.radians(-134.480975), math.radians(-45.519025)),
    Part.ArcOfCircle(Part.Circle(Vector(-90.145453, -6.35, 0), Vector(0, 0, 1), 6.35), math.radians(45.519025), math.radians(90)),
    Part.LineSegment(Vector(-90.145453, 0, 0), Vector(-87.338208, 0, 0)),
    Part.ArcOfCircle(Part.Circle(Vector(-71.4375, 12.7, 0), Vector(0, 0, 1), 20.35), math.radians(-161.817828), math.radians(-141.385407)),
    Part.Circle(Vector(-71.4375, 12.7, 0), Vector(0, 0, 1), 14),
], False)
sketch5.addConstraint([
    Sketcher.Constraint("Tangent", 0, 2, 1, 1),
    Sketcher.Constraint("Tangent", 1, 2, 2, 2),
    Sketcher.Constraint("Tangent", 2, 1, 3, 1),
    Sketcher.Constraint("Tangent", 3, 2, 4, 1),
    Sketcher.Constraint("Coincident", 4, 2, 5, 2),
    Sketcher.Constraint("Coincident", 5, 1, 6, 1),
    Sketcher.Constraint("Tangent", 6, 2, 7, 1),
    Sketcher.Constraint("Tangent", 7, 2, 8, 2),
    Sketcher.Constraint("Tangent", 8, 1, 9, 1),
    Sketcher.Constraint("Tangent", 9, 2, 10, 1),
    Sketcher.Constraint("Coincident", 10, 2, 11, 2),
    Sketcher.Constraint("Coincident", 11, 1, 0, 1),
    Sketcher.Constraint("Horizontal", 0),
    Sketcher.Constraint("Horizontal", 4),
    Sketcher.Constraint("Horizontal", 6),
    Sketcher.Constraint("Horizontal", 10),
    Sketcher.Constraint("Coincident", 5, 3, 2, 3),
    Sketcher.Constraint("Coincident", 8, 3, 2, 3),
    Sketcher.Constraint("Coincident", 11, 3, 2, 3),
    Sketcher.Constraint("Coincident", 12, 3, 2, 3),
    Sketcher.Constraint("Equal", 1, 3),
    Sketcher.Constraint("Equal", 2, 5),
    Sketcher.Constraint("Equal", 3, 7),
    Sketcher.Constraint("Equal", 5, 8),
    Sketcher.Constraint("Equal", 7, 9),
    Sketcher.Constraint("Equal", 8, 11),
    Sketcher.Constraint("PointOnObject", 5, 1, -1),
    Sketcher.Constraint("PointOnObject", 9, 2, -1),
    Sketcher.Constraint("Horizontal", 1, 3, 2, 3),
    Sketcher.Constraint("Horizontal", 2, 3, 3, 3),
    Sketcher.Constraint("Radius", 1, Q("0.25 in")),
    Sketcher.Constraint("DistanceY", -1, 1, 1, 3, Q("0.5 in")),
    Sketcher.Constraint("Diameter", 12, 28.0),
    Sketcher.Constraint("Radius", 2, 20.35),
    Sketcher.Constraint("DistanceX", 2, 3, -1, 1, Q("2.8125 in")),
])
sketch5.setExpression("Constraints[30]", "Params.sketch5_radius")
pad3 = body.newObject("PartDesign::Pad", "Pad002")
pad3.Profile = sketch5
pad3.setExpression("Length", "Params.pad3_length")

sketch6 = body.newObject("Sketcher::SketchObject", "Sketch005")
sketch6.AttachmentSupport = (doc.getObject("XZ_Plane"), [""])
sketch6.MapMode = "FlatFace"
sketch6.AttachmentOffset = App.Placement(Vector(0, 0, 5.5 * 25.4), App.Rotation())
sketch6.addGeometry([
    Part.LineSegment(Vector(-60.325, 6.35, 0), Vector(-82.55, 6.35, 0)),
    Part.ArcOfCircle(Part.Circle(Vector(-82.55, 12.7, 0), Vector(0, 0, 1), 6.35), math.radians(-90), math.radians(0)),
    Part.ArcOfCircle(Part.Circle(Vector(-71.4375, 12.7, 0), Vector(0, 0, 1), 4.7625), math.radians(0), math.radians(180)),
    Part.ArcOfCircle(Part.Circle(Vector(-60.325, 12.7, 0), Vector(0, 0, 1), 6.35), math.radians(180), math.radians(270)),
], False)
sketch6.addConstraint([
    Sketcher.Constraint("Tangent", 0, 2, 1, 1),
    Sketcher.Constraint("Tangent", 1, 2, 2, 2),
    Sketcher.Constraint("Tangent", 2, 1, 3, 1),
    Sketcher.Constraint("Tangent", 3, 2, 0, 1),
    Sketcher.Constraint("Horizontal", 0),
    Sketcher.Constraint("Equal", 1, 3),
    Sketcher.Constraint("Horizontal", 1, 3, 2, 3),
    Sketcher.Constraint("Radius", 1, Q("0.25 in")),
    Sketcher.Constraint("DistanceX", 1, 2, -1, 1, Q("3 in")),
    Sketcher.Constraint("Radius", 2, Q("0.1875 in")),
    Sketcher.Constraint("DistanceY", -1, 1, 1, 3, Q("0.5 in")),
])
sketch6.setExpression("Constraints[7]", "Params.sketch6_radius")
sketch6.setExpression("Constraints[9]", "Params.sketch6_radius2")
pad4 = body.newObject("PartDesign::Pad", "Pad003")
pad4.Profile = sketch6
pad4.setExpression("Length", "Params.pad4_length")
pad4.Reversed = True

sketch7 = body.newObject("Sketcher::SketchObject", "Sketch006")
sketch7.AttachmentSupport = (doc.getObject("XZ_Plane"), [""])
sketch7.MapMode = "FlatFace"
sketch7.AttachmentOffset = App.Placement(Vector(0, 0, 7.5 * 25.4), App.Rotation())
sketch7.addGeometry(Part.Circle(Vector(-71.4375, 12.7, 0), Vector(0, 0, 1), 4.7625), False)
sketch7.addConstraint([
    Sketcher.Constraint("Diameter", 0, Q("0.375 in")),
    Sketcher.Constraint("DistanceY", -1, 1, 0, 3, Q("0.5 in")),
    Sketcher.Constraint("DistanceX", 0, 3, -1, 1, Q("2.8125 in")),
])
sketch7.setExpression("Constraints[0]", "Params.sketch7_diameter")
pad5 = body.newObject("PartDesign::Pad", "Pad004")
pad5.Profile = sketch7
pad5.setExpression("Length", "Params.pad5_length")
pad5.Reversed = True

sketch8 = body.newObject("Sketcher::SketchObject", "Sketch007")
sketch8.AttachmentSupport = (doc.getObject("XZ_Plane"), [""])
sketch8.MapMode = "FlatFace"
sketch8.addGeometry(Part.Circle(Vector(-71.4375, 12.7, 0), Vector(0, 0, 1), 14), False)
sketch8.addConstraint([
    Sketcher.Constraint("DistanceY", -1, 1, 0, 3, Q("0.5 in")),
    Sketcher.Constraint("Diameter", 0, 28.0),
    Sketcher.Constraint("DistanceX", 0, 3, -1, 1, Q("2.8125 in")),
])
pocket3 = body.newObject("PartDesign::Pocket", "Pocket002")
pocket3.Profile = sketch8
pocket3.setExpression("Length", "Params.pocket3_length")
pocket3.Reversed = True

doc.recompute()
